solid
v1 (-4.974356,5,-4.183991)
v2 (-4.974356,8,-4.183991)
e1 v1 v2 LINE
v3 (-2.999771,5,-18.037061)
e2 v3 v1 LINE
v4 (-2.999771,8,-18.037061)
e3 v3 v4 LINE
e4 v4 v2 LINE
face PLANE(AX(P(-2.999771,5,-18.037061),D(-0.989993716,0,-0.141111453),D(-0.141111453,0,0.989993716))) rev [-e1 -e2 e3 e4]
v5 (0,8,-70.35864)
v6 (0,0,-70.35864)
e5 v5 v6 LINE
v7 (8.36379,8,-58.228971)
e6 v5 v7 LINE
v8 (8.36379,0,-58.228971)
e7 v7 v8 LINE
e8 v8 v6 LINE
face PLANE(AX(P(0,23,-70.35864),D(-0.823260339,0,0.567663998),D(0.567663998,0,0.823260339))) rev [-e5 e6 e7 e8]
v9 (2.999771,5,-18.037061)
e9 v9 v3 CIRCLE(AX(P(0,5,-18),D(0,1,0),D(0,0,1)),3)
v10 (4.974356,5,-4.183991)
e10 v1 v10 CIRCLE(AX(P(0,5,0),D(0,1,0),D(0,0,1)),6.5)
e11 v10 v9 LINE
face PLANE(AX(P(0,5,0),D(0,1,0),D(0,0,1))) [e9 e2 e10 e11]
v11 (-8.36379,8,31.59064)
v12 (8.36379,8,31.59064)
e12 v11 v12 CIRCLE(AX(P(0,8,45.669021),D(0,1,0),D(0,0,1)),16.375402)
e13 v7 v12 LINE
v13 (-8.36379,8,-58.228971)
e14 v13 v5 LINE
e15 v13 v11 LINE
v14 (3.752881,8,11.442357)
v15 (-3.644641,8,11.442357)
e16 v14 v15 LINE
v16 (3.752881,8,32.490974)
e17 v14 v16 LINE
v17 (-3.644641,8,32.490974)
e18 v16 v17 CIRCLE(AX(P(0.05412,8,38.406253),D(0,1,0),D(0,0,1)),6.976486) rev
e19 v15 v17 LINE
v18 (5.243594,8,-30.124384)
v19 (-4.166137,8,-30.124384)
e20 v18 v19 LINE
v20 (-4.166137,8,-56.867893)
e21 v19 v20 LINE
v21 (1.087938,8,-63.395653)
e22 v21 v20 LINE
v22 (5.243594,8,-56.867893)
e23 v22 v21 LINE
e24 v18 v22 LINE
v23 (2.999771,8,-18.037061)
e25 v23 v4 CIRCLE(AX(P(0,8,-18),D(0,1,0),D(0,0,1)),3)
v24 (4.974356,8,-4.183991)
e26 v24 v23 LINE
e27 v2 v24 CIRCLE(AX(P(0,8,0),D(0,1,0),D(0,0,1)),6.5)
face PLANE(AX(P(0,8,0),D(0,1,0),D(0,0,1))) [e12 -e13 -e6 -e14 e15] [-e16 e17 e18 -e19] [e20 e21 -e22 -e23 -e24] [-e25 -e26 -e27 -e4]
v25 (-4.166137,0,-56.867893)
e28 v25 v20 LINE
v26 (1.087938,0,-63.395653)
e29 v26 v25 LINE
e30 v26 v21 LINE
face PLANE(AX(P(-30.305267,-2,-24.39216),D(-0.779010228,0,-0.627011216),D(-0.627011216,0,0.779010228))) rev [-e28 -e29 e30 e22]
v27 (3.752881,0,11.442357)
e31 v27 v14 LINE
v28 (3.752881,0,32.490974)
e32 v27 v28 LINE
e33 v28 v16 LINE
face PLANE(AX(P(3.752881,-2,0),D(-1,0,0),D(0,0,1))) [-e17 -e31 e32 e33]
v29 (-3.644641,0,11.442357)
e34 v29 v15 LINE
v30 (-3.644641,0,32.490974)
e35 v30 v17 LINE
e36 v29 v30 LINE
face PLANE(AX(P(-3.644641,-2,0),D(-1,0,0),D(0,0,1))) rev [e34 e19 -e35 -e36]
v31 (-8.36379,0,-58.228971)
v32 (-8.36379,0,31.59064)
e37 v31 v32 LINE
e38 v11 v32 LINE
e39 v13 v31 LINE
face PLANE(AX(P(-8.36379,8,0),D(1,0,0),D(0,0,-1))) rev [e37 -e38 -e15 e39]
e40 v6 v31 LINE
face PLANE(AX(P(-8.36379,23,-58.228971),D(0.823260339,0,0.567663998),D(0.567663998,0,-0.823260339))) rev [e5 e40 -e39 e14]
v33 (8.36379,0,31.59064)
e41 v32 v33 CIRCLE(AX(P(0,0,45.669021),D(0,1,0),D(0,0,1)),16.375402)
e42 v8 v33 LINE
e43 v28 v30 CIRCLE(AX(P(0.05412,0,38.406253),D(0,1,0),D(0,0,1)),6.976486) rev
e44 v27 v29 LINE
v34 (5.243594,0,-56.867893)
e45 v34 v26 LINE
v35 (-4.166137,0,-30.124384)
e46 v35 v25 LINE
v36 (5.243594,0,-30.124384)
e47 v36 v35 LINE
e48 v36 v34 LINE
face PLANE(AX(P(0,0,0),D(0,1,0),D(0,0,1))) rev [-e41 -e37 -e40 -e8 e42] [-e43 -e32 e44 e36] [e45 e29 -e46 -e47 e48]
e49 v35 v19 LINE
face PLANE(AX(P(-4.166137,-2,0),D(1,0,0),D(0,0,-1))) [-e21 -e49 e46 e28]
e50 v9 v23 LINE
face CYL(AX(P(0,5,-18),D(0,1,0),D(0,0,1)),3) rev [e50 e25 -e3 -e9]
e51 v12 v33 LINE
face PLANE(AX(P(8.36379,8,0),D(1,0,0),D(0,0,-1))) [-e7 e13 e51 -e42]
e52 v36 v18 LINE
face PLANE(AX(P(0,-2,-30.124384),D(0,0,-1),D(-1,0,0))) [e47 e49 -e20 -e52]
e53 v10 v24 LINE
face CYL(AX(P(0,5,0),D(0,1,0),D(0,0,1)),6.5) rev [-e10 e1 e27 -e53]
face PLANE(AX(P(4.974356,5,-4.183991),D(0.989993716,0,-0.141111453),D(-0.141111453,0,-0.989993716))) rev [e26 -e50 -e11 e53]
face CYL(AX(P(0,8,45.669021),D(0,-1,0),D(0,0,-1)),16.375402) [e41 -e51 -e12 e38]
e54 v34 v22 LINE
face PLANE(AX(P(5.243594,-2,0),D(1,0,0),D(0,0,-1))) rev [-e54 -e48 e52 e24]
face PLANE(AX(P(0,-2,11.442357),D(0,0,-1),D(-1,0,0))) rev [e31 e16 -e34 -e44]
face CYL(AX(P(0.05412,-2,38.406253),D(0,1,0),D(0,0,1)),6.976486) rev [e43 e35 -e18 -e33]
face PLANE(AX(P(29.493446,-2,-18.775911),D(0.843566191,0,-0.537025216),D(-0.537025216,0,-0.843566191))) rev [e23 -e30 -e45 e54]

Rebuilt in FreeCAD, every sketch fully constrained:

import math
import FreeCAD as App
import Part
import Sketcher
from FreeCAD import Vector

doc = App.newDocument("Part")
body = doc.addObject("PartDesign::Body", "Body")

sketch1 = body.newObject("Sketcher::SketchObject", "Sketch")
sketch1.AttachmentSupport = (doc.getObject("XZ_Plane"), [""])
sketch1.MapMode = "FlatFace"
sketch1.addGeometry([
    Part.ArcOfCircle(Part.Circle(Vector(0, 46, 0), Vector(0, 0, 1), 16), math.radians(-59), math.radians(239)),
    Part.LineSegment(Vector(8, 32, 0), Vector(8, -45, 0)),
    Part.LineSegment(Vector(8, -45, 0), Vector(15, -45, 0)),
    Part.LineSegment(Vector(15, -45, 0), Vector(15, -95, 0)),
    Part.LineSegment(Vector(15, -95, 0), Vector(-15, -95, 0)),
    Part.LineSegment(Vector(-15, -95, 0), Vector(-15, -45, 0)),
    Part.LineSegment(Vector(-15, -45, 0), Vector(-8, -45, 0)),
    Part.LineSegment(Vector(-8, -45, 0), Vector(-8, 32, 0)),
], False)
sketch1.addConstraint([
    Sketcher.Constraint("Coincident", 0, 1, 1, 1),
    Sketcher.Constraint("Coincident", 1, 2, 2, 1),
    Sketcher.Constraint("Coincident", 2, 2, 3, 1),
    Sketcher.Constraint("Coincident", 3, 2, 4, 1),
    Sketcher.Constraint("Coincident", 4, 2, 5, 1),
    Sketcher.Constraint("Coincident", 5, 2, 6, 1),
    Sketcher.Constraint("Coincident", 6, 2, 7, 1),
    Sketcher.Constraint("Coincident", 7, 2, 0, 2),
    Sketcher.Constraint("Vertical", 1),
    Sketcher.Constraint("Horizontal", 2),
    Sketcher.Constraint("Vertical", 3),
    Sketcher.Constraint("Horizontal", 4),
    Sketcher.Constraint("Vertical", 5),
    Sketcher.Constraint("Horizontal", 6),
    Sketcher.Constraint("Vertical", 7),
    Sketcher.Constraint("Symmetric", 2, 2, 5, 2, -2),
    Sketcher.Constraint("Symmetric", 0, 1, 7, 2, -2),
    Sketcher.Constraint("DistanceX", 4, 2, 4, 1, 30.0),
    Sketcher.Constraint("DistanceY", 3, 2, 3, 1, 50.0),
    Sketcher.Constraint("DistanceY", 1, 2, -1, 1, 45.0),
    Sketcher.Constraint("Radius", 0, 16.375402),
    Sketcher.Constraint("DistanceX", 2, 1, 2, 2, 6.63621),
    Sketcher.Constraint("DistanceY", 1, 2, 1, 1, 76.59064),
])
pad1 = body.newObject("PartDesign::Pad", "Pad")
pad1.Profile = sketch1
pad1.Length = 8
pad1.Reversed = True

sketch2 = body.newObject("Sketcher::SketchObject", "Sketch001")
sketch2.AttachmentSupport = (doc.getObject("XZ_Plane"), [""])
sketch2.MapMode = "FlatFace"
sketch2.AttachmentOffset = App.Placement(Vector(0, 0, -8), App.Rotation())
sketch2.addGeometry([
    Part.LineSegment(Vector(-3, -18, 0), Vector(-5, -4.2, 0)),
    Part.ArcOfCircle(Part.Circle(Vector(0, 0, 0), Vector(0, 0, 1), 6.5), math.radians(-40), math.radians(220)),
    Part.LineSegment(Vector(5, -4.2, 0), Vector(3, -18, 0)),
    Part.ArcOfCircle(Part.Circle(Vector(0, -18, 0), Vector(0, 0, 1), 3), math.radians(-179), math.radians(-1)),
], False)
sketch2.addConstraint([
    Sketcher.Constraint("Coincident", 0, 2, 1, 2),
    Sketcher.Constraint("Coincident", 1, 1, 2, 1),
    Sketcher.Constraint("Coincident", 2, 2, 3, 2),
    Sketcher.Constraint("Coincident", 3, 1, 0, 1),
    Sketcher.Constraint("Coincident", 1, 3, -1, 1),
    Sketcher.Constraint("Symmetric", 2, 2, 3, 1, -2),
    Sketcher.Constraint("Horizontal", 0, 2, 1, 1),
    Sketcher.Constraint("Radius", 3, 3.0),
    Sketcher.Constraint("Radius", 1, 6.5),
    Sketcher.Constraint("DistanceY", 3, 3, -1, 1, 18.0),
    Sketcher.Constraint("Distance", 0, 13.993089),
    Sketcher.Constraint("DistanceY", 0, 2, -1, 1, 4.183991),
])
pocket1 = body.newObject("PartDesign::Pocket", "Pocket")
pocket1.Profile = sketch2
pocket1.Length = 3
pocket1.Reversed = True

sketch3 = body.newObject("Sketcher::SketchObject", "Sketch002")
sketch3.AttachmentSupport = (doc.getObject("XZ_Plane"), [""])
sketch3.MapMode = "FlatFace"
sketch3.addGeometry([
    Part.LineSegment(Vector(-10, -50, 0), Vector(-10, -90, 0)),
    Part.LineSegment(Vector(-10, -90, 0), Vector(10, -90, 0)),
    Part.LineSegment(Vector(10, -90, 0), Vector(10, -50, 0)),
    Part.LineSegment(Vector(10, -50, 0), Vector(4, -50, 0)),
    Part.LineSegment(Vector(4, -50, 0), Vector(4, -40, 0)),
    Part.LineSegment(Vector(4, -40, 0), Vector(-4, -40, 0)),
    Part.LineSegment(Vector(-4, -40, 0), Vector(-4, -50, 0)),
    Part.LineSegment(Vector(-4, -50, 0), Vector(-10, -50, 0)),
], False)
sketch3.addConstraint([
    Sketcher.Constraint("Coincident", 0, 2, 1, 1),
    Sketcher.Constraint("Coincident", 1, 2, 2, 1),
    Sketcher.Constraint("Coincident", 2, 2, 3, 1),
    Sketcher.Constraint("Coincident", 3, 2, 4, 1),
    Sketcher.Constraint("Coincident", 4, 2, 5, 1),
    Sketcher.Constraint("Coincident", 5, 2, 6, 1),
    Sketcher.Constraint("Coincident", 6, 2, 7, 1),
    Sketcher.Constraint("Coincident", 7, 2, 0, 1),
    Sketcher.Constraint("Vertical", 0),
    Sketcher.Constraint("Horizontal", 1),
    Sketcher.Constraint("Vertical", 2),
    Sketcher.Constraint("Horizontal", 3),
    Sketcher.Constraint("Vertical", 4),
    Sketcher.Constraint("Horizontal", 5),
    Sketcher.Constraint("Vertical", 6),
    Sketcher.Constraint("Horizontal", 7),
    Sketcher.Constraint("Symmetric", 3, 2, 6, 2, -2),
    Sketcher.Constraint("Equal", 3, 5),
    Sketcher.Constraint("Equal", 5, 7),
    Sketcher.Constraint("DistanceX", 1, 1, 1, 2, 21.0),
    Sketcher.Constraint("DistanceY", 0, 2, 0, 1, 41.0),
    Sketcher.Constraint("DistanceY", 4, 1, 4, 2, 9.0),
    Sketcher.Constraint("DistanceY", 0, 2, -1, 1, 90.5),
])
pocket2 = body.newObject("PartDesign::Pocket", "Pocket001")
pocket2.Profile = sketch3
pocket2.Type = "ThroughAll"

sketch4 = body.newObject("Sketcher::SketchObject", "Sketch003")
sketch4.AttachmentSupport = (doc.getObject("XZ_Plane"), [""])
sketch4.MapMode = "FlatFace"
sketch4.addGeometry([
    Part.LineSegment(Vector(-23, -27, 0), Vector(-23, -100, 0)),
    Part.LineSegment(Vector(-23, -100, 0), Vector(19, -100, 0)),
    Part.LineSegment(Vector(19, -100, 0), Vector(19, -27, 0)),
    Part.LineSegment(Vector(19, -27, 0), Vector(-23, -27, 0)),
], False)
sketch4.addConstraint([
    Sketcher.Constraint("Coincident", 0, 2, 1, 1),
    Sketcher.Constraint("Coincident", 1, 2, 2, 1),
    Sketcher.Constraint("Coincident", 2, 2, 3, 1),
    Sketcher.Constraint("Coincident", 3, 2, 0, 1),
    Sketcher.Constraint("Vertical", 0),
    Sketcher.Constraint("Horizontal", 1),
    Sketcher.Constraint("Vertical", 2),
    Sketcher.Constraint("Horizontal", 3),
    Sketcher.Constraint("DistanceY", 0, 2, 0, 1, 72.244371),
    Sketcher.Constraint("DistanceX", 1, 1, 1, 2, 42.713825),
    Sketcher.Constraint("DistanceY", 0, 2, -1, 1, 99.603011),
    Sketcher.Constraint("DistanceX", -1, 1, 1, 2, 19.38224),
])
pocket3 = body.newObject("PartDesign::Pocket", "Pocket002")
pocket3.Profile = sketch4
pocket3.Type = "ThroughAll"

sketch5 = body.newObject("Sketcher::SketchObject", "Sketch004")
sketch5.AttachmentSupport = (doc.getObject("XY_Plane"), [""])
sketch5.MapMode = "FlatFace"
sketch5.AttachmentOffset = App.Placement(Vector(0, 0, -27.35864), App.Rotation())
sketch5.addGeometry([
    Part.LineSegment(Vector(8, 8, 0), Vector(8, 0, 0)),
    Part.LineSegment(Vector(8, 0, 0), Vector(-8, 0, 0)),
    Part.LineSegment(Vector(-8, 0, 0), Vector(-8, 8, 0)),
    Part.LineSegment(Vector(-8, 8, 0), Vector(8, 8, 0)),
], False)
sketch5.addConstraint([
    Sketcher.Constraint("Coincident", 0, 2, 1, 1),
    Sketcher.Constraint("Coincident", 1, 2, 2, 1),
    Sketcher.Constraint("Coincident", 2, 2, 3, 1),
    Sketcher.Constraint("Coincident", 3, 2, 0, 1),
    Sketcher.Constraint("Vertical", 0),
    Sketcher.Constraint("Horizontal", 1),
    Sketcher.Constraint("Vertical", 2),
    Sketcher.Constraint("Horizontal", 3),
    Sketcher.Constraint("Symmetric", 0, 2, 1, 2, -1, 1),
    Sketcher.Constraint("DistanceY", 0, 2, 0, 1, 8.0),
    Sketcher.Constraint("DistanceX", 1, 2, 1, 1, 16.72758),
])
pad2 = body.newObject("PartDesign::Pad", "Pad001")
pad2.Profile = sketch5
pad2.Length = 43
pad2.Reversed = True

sketch6 = body.newObject("Sketcher::SketchObject", "Sketch005")
sketch6.AttachmentSupport = (doc.getObject("XZ_Plane"), [""])
sketch6.MapMode = "FlatFace"
sketch6.addGeometry([
    Part.LineSegment(Vector(0, -70, 0), Vector(-8, -58, 0)),
    Part.LineSegment(Vector(-8, -58, 0), Vector(-16, -58, 0)),
    Part.LineSegment(Vector(-16, -58, 0), Vector(-16, -78, 0)),
    Part.LineSegment(Vector(-16, -78, 0), Vector(15, -78, 0)),
    Part.LineSegment(Vector(15, -78, 0), Vector(15, -58, 0)),
    Part.LineSegment(Vector(15, -58, 0), Vector(8, -58, 0)),
    Part.LineSegment(Vector(8, -58, 0), Vector(0, -70, 0)),
], False)
sketch6.addConstraint([
    Sketcher.Constraint("Coincident", 0, 2, 1, 1),
    Sketcher.Constraint("Coincident", 1, 2, 2, 1),
    Sketcher.Constraint("Coincident", 2, 2, 3, 1),
    Sketcher.Constraint("Coincident", 3, 2, 4, 1),
    Sketcher.Constraint("Coincident", 4, 2, 5, 1),
    Sketcher.Constraint("Coincident", 5, 2, 6, 1),
    Sketcher.Constraint("Coincident", 6, 2, 0, 1),
    Sketcher.Constraint("Horizontal", 1),
    Sketcher.Constraint("Horizontal", 3),
    Sketcher.Constraint("Vertical", 4),
    Sketcher.Constraint("Horizontal", 5),
    Sketcher.Constraint("Symmetric", 0, 2, 5, 2, -2),
    Sketcher.Constraint("PointOnObject", 6, 2, -2),
    Sketcher.Constraint("DistanceY", 4, 1, 4, 2, 19.895369),
    Sketcher.Constraint("DistanceY", 3, 2, 6, 2, 7.7657),
    Sketcher.Constraint("DistanceX", 1, 2, 1, 1, 7.455787),
    Sketcher.Constraint("DistanceX", 3, 1, 3, 2, 31.121248),
    Sketcher.Constraint("DistanceX", 5, 2, 5, 1, 6.270997),
    Sketcher.Constraint("DistanceX", 0, 2, -1, 1, 8.36379),
    Sketcher.Constraint("DistanceY", 0, 2, -1, 1, 58.228971),
])
pocket4 = body.newObject("PartDesign::Pocket", "Pocket003")
pocket4.Profile = sketch6
pocket4.Length = 23

sketch7 = body.newObject("Sketcher::SketchObject", "Sketch006")
sketch7.AttachmentSupport = (doc.getObject("XZ_Plane"), [""])
sketch7.MapMode = "FlatFace"
sketch7.AttachmentOffset = App.Placement(Vector(0, 0, -8), App.Rotation())
sketch7.addGeometry([
    Part.LineSegment(Vector(-4, -57, 0), Vector(-4, -30, 0)),
    Part.LineSegment(Vector(-4, -30, 0), Vector(5, -30, 0)),
    Part.LineSegment(Vector(5, -30, 0), Vector(5, -57, 0)),
    Part.LineSegment(Vector(5, -57, 0), Vector(1, -63, 0)),
    Part.LineSegment(Vector(1, -63, 0), Vector(-4, -57, 0)),
    Part.LineSegment(Vector(-4, 11, 0), Vector(-4, 32, 0)),
    Part.ArcOfCircle(Part.Circle(Vector(0, 38, 0), Vector(0, 0, 1), 7), math.radians(-58), math.radians(238)),
    Part.LineSegment(Vector(4, 32, 0), Vector(4, 11, 0)),
    Part.LineSegment(Vector(4, 11, 0), Vector(-4, 11, 0)),
], False)
sketch7.addConstraint([
    Sketcher.Constraint("Coincident", 0, 2, 1, 1),
    Sketcher.Constraint("Coincident", 1, 2, 2, 1),
    Sketcher.Constraint("Coincident", 2, 2, 3, 1),
    Sketcher.Constraint("Coincident", 3, 2, 4, 1),
    Sketcher.Constraint("Coincident", 4, 2, 0, 1),
    Sketcher.Constraint("Coincident", 5, 2, 6, 2),
    Sketcher.Constraint("Coincident", 6, 1, 7, 1),
    Sketcher.Constraint("Coincident", 7, 2, 8, 1),
    Sketcher.Constraint("Coincident", 8, 2, 5, 1),
    Sketcher.Constraint("Vertical", 0),
    Sketcher.Constraint("Horizontal", 1),
    Sketcher.Constraint("Vertical", 2),
    Sketcher.Constraint("Vertical", 5),
    Sketcher.Constraint("Vertical", 7),
    Sketcher.Constraint("Horizontal", 8),
    Sketcher.Constraint("Horizontal", 2, 2, 4, 2),
    Sketcher.Constraint("Horizontal", 5, 2, 6, 1),
    Sketcher.Constraint("Radius", 6, 6.976486),
    Sketcher.Constraint("DistanceX", 1, 1, 1, 2, 9.409732),
    Sketcher.Constraint("DistanceX", 8, 2, 8, 1, 7.397521),
    Sketcher.Constraint("DistanceY", 0, 1, 0, 2, 26.74351),
    Sketcher.Constraint("Distance", 3, 7.738289),
    Sketcher.Constraint("DistanceY", 5, 1, 5, 2, 21.048617),
    Sketcher.Constraint("DistanceX", -1, 1, 6, 3, 0.05412),
    Sketcher.Constraint("DistanceY", 3, 2, 2, 2, 6.527759),
    Sketcher.Constraint("DistanceY", 1, 2, 7, 2, 41.566741),
    Sketcher.Constraint("DistanceY", -1, 1, 6, 3, 38.406253),
    Sketcher.Constraint("DistanceX", 0, 2, -1, 1, 4.166137),
])
pocket5 = body.newObject("PartDesign::Pocket", "Pocket004")
pocket5.Profile = sketch7
pocket5.Length = 10
pocket5.Reversed = True

doc.recompute()
